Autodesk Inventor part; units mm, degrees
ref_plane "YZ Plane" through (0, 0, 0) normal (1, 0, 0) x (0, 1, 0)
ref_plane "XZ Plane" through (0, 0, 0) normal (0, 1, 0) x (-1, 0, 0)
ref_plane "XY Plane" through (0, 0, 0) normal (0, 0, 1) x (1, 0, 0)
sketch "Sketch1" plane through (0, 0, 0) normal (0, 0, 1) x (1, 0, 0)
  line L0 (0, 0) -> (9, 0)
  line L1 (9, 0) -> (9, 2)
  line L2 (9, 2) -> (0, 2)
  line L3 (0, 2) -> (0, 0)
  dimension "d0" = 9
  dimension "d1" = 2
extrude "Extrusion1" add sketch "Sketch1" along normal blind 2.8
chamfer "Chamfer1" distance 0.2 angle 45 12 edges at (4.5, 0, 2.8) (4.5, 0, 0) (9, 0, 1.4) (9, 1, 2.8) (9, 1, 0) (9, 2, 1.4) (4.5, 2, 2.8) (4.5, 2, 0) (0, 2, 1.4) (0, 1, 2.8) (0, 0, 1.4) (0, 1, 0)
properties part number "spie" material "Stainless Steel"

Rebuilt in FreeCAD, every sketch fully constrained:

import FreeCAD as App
import Part
import Sketcher
Q = App.Units.Quantity


def add_polygon(sketch, points):
    """Adds a closed chain of lines whose ends are joined by coincident constraints."""
    first, n = sketch.GeometryCount, len(points)
    for a, b in zip(points, points[1:] + points[:1]):
        sketch.addGeometry(Part.LineSegment(App.Vector(*a, 0), App.Vector(*b, 0)), False)
    for i in range(n):
        sketch.addConstraint(Sketcher.Constraint("Coincident", first + i, 2, first + (i + 1) % n, 1))

doc = App.newDocument("Part")
body = doc.addObject("PartDesign::Body", "Body")

sketch1 = doc.addObject("Sketcher::SketchObject", "Sketch")
body.addObject(sketch1)
sketch1.AttachmentSupport = (doc.XY_Plane, [""])
sketch1.MapMode = "FlatFace"
add_polygon(sketch1, [(0, 2), (0, 0), (9, 0), (9, 2)])
sketch1.addConstraint(Sketcher.Constraint("Vertical", 0))
sketch1.addConstraint(Sketcher.Constraint("Horizontal", 1))
sketch1.addConstraint(Sketcher.Constraint("Vertical", 2))
sketch1.addConstraint(Sketcher.Constraint("Horizontal", 3))
sketch1.addConstraint(Sketcher.Constraint("Coincident", 0, 2, -1, 1))
sketch1.addConstraint(Sketcher.Constraint("DistanceX", 1, 1, 1, 2, Q("9 mm")))
sketch1.addConstraint(Sketcher.Constraint("DistanceY", 0, 2, 0, 1, Q("2 mm")))
pad1 = doc.addObject("PartDesign::Pad", "Pad")
body.addObject(pad1)
pad1.Profile = sketch1
pad1.Length = 2.8
doc.recompute()

chamfer = doc.addObject("PartDesign::Chamfer", "Chamfer")
body.addObject(chamfer)
chamfer.Base = (pad1, ["Edge1"])
chamfer.UseAllEdges = True
chamfer.Size = 0.2

doc.recompute()
